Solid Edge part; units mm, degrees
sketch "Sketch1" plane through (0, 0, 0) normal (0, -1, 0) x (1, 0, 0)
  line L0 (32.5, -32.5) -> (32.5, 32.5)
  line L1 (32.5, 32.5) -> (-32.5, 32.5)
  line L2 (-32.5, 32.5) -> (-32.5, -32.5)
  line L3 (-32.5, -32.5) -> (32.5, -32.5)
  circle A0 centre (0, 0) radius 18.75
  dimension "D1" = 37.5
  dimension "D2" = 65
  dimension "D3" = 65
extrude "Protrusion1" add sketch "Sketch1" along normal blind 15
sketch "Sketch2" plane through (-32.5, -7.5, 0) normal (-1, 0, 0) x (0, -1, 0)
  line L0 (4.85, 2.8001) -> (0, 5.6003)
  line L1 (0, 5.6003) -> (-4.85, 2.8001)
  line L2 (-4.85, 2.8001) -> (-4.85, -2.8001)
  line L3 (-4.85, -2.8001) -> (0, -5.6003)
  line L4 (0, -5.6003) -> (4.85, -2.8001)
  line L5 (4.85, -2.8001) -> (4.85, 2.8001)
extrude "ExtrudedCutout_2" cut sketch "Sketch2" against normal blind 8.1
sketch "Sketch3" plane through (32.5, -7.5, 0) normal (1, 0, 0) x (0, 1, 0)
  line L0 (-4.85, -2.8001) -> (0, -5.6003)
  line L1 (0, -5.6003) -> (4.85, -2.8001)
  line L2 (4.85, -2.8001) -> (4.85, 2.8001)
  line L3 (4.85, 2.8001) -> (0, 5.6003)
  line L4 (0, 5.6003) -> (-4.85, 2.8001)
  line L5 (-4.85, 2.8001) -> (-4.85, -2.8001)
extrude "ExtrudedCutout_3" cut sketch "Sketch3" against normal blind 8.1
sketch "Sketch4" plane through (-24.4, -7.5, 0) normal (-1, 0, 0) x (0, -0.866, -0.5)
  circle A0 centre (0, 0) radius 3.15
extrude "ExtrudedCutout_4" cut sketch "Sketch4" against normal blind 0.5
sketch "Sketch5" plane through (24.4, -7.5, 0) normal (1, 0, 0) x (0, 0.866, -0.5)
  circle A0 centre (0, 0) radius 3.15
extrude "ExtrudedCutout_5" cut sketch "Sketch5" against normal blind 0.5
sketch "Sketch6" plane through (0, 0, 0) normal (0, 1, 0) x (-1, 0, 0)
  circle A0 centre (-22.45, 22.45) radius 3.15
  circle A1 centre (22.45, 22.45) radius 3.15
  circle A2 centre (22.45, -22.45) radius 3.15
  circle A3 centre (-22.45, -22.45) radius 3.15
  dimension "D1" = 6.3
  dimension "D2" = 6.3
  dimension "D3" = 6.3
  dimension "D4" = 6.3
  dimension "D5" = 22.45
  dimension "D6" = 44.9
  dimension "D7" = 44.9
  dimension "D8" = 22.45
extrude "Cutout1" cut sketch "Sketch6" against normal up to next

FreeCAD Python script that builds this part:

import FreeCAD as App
import Part
import Sketcher
from FreeCAD import Vector
Q = App.Units.Quantity

doc = App.newDocument("Part")
params = doc.addObject("Spreadsheet::Sheet", "Params")
for row, (alias, value) in enumerate([
    ("sketch1_diameter", "37.5 mm"),
    ("sketch1_width", "65 mm"),
    ("pad1_length", "15 mm"),
    ("pocket1_length", "8.1 mm"),
    ("pocket2_length", "8.1 mm"),
    ("sketch4_diameter", "6.3 mm"),
    ("pocket3_length", "0.5 mm"),
    ("sketch5_diameter", "6.3 mm"),
    ("pocket4_length", "0.5 mm"),
    ("sketch6_diameter", "6.3 mm"),
    ("pocket5_length", "15 mm"),
], start=1):
    params.set(f"A{row}", alias)
    params.set(f"B{row}", "=" + value)
    params.setAlias(f"B{row}", alias)

body = doc.addObject("PartDesign::Body", "Body")

sketch1 = body.newObject("Sketcher::SketchObject", "Sketch")
sketch1.AttachmentSupport = (doc.getObject("XZ_Plane"), [""])
sketch1.MapMode = "FlatFace"
sketch1.addGeometry(Part.LineSegment(Vector(-32, -32, 0), Vector(32, -32, 0)), False)
sketch1.addGeometry(Part.LineSegment(Vector(32, -32, 0), Vector(32, 32, 0)), False)
sketch1.addGeometry(Part.LineSegment(Vector(32, 32, 0), Vector(-32, 32, 0)), False)
sketch1.addGeometry(Part.LineSegment(Vector(-32, 32, 0), Vector(-32, -32, 0)), False)
sketch1.addGeometry(Part.Circle(Vector(0, 0, 0), Vector(0, 0, 1), 19), False)
sketch1.addConstraint(Sketcher.Constraint("Coincident", 0, 2, 1, 1))
sketch1.addConstraint(Sketcher.Constraint("Coincident", 1, 2, 2, 1))
sketch1.addConstraint(Sketcher.Constraint("Coincident", 2, 2, 3, 1))
sketch1.addConstraint(Sketcher.Constraint("Coincident", 3, 2, 0, 1))
sketch1.addConstraint(Sketcher.Constraint("Horizontal", 0))
sketch1.addConstraint(Sketcher.Constraint("Vertical", 1))
sketch1.addConstraint(Sketcher.Constraint("Horizontal", 2))
sketch1.addConstraint(Sketcher.Constraint("Vertical", 3))
sketch1.addConstraint(Sketcher.Constraint("Coincident", 4, 3, -1, 1))
sketch1.addConstraint(Sketcher.Constraint("Symmetric", 0, 2, 2, 2, -1, 1))
sketch1.addConstraint(Sketcher.Constraint("Equal", 2, 1))
sketch1.addConstraint(Sketcher.Constraint("Diameter", 4, 37.5))
sketch1.addConstraint(Sketcher.Constraint("DistanceX", 0, 1, 0, 2, 65.0))
sketch1.setExpression("Constraints[11]", "Params.sketch1_diameter")
sketch1.setExpression("Constraints[12]", "Params.sketch1_width")
pad1 = body.newObject("PartDesign::Pad", "Pad")
pad1.Profile = sketch1
pad1.setExpression("Length", "Params.pad1_length")

sketch2 = body.newObject("Sketcher::SketchObject", "Sketch001")
sketch2.AttachmentSupport = (doc.getObject("YZ_Plane"), [""])
sketch2.MapMode = "FlatFace"
sketch2.AttachmentOffset = App.Placement(Vector(0, 0, -32.5), App.Rotation())
sketch2.addGeometry(Part.LineSegment(Vector(-12, -3, 0), Vector(-12, 3, 0)), False)
sketch2.addGeometry(Part.LineSegment(Vector(-12, 3, 0), Vector(-8, 6, 0)), False)
sketch2.addGeometry(Part.LineSegment(Vector(-8, 6, 0), Vector(-3, 3, 0)), False)
sketch2.addGeometry(Part.LineSegment(Vector(-3, 3, 0), Vector(-3, -3, 0)), False)
sketch2.addGeometry(Part.LineSegment(Vector(-3, -3, 0), Vector(-8, -6, 0)), False)
sketch2.addGeometry(Part.LineSegment(Vector(-8, -6, 0), Vector(-12, -3, 0)), False)
sketch2.addConstraint(Sketcher.Constraint("Coincident", 0, 2, 1, 1))
sketch2.addConstraint(Sketcher.Constraint("Coincident", 1, 2, 2, 1))
sketch2.addConstraint(Sketcher.Constraint("Coincident", 2, 2, 3, 1))
sketch2.addConstraint(Sketcher.Constraint("Coincident", 3, 2, 4, 1))
sketch2.addConstraint(Sketcher.Constraint("Coincident", 4, 2, 5, 1))
sketch2.addConstraint(Sketcher.Constraint("Coincident", 5, 2, 0, 1))
sketch2.addConstraint(Sketcher.Constraint("Vertical", 0))
sketch2.addConstraint(Sketcher.Constraint("Vertical", 3))
sketch2.addConstraint(Sketcher.Constraint("Symmetric", 1, 2, 4, 2, -1))
sketch2.addConstraint(Sketcher.Constraint("Parallel", 1, 4))
sketch2.addConstraint(Sketcher.Constraint("Parallel", 2, 5))
sketch2.addConstraint(Sketcher.Constraint("Horizontal", 0, 2, 2, 2))
sketch2.addConstraint(Sketcher.Constraint("Horizontal", 3, 2, 5, 2))
sketch2.addConstraint(Sketcher.Constraint("Angle", 1, Q("30.0005 deg")))
sketch2.addConstraint(Sketcher.Constraint("DistanceY", -1, 1, 0, 2, 2.8))
sketch2.addConstraint(Sketcher.Constraint("DistanceX", 1, 2, -1, 1, 7.5))
sketch2.addConstraint(Sketcher.Constraint("DistanceX", 0, 2, 2, 2, 9.7))
pocket1 = body.newObject("PartDesign::Pocket", "Pocket")
pocket1.Profile = sketch2
pocket1.setExpression("Length", "Params.pocket1_length")
pocket1.Reversed = True

sketch3 = body.newObject("Sketcher::SketchObject", "Sketch002")
sketch3.AttachmentSupport = (doc.getObject("YZ_Plane"), [""])
sketch3.MapMode = "FlatFace"
sketch3.AttachmentOffset = App.Placement(Vector(0, 0, 32.5), App.Rotation())
sketch3.addGeometry(Part.LineSegment(Vector(-12, 3, 0), Vector(-12, -3, 0)), False)
sketch3.addGeometry(Part.LineSegment(Vector(-12, -3, 0), Vector(-8, -6, 0)), False)
sketch3.addGeometry(Part.LineSegment(Vector(-8, -6, 0), Vector(-3, -3, 0)), False)
sketch3.addGeometry(Part.LineSegment(Vector(-3, -3, 0), Vector(-3, 3, 0)), False)
sketch3.addGeometry(Part.LineSegment(Vector(-3, 3, 0), Vector(-8, 6, 0)), False)
sketch3.addGeometry(Part.LineSegment(Vector(-8, 6, 0), Vector(-12, 3, 0)), False)
sketch3.addConstraint(Sketcher.Constraint("Coincident", 0, 2, 1, 1))
sketch3.addConstraint(Sketcher.Constraint("Coincident", 1, 2, 2, 1))
sketch3.addConstraint(Sketcher.Constraint("Coincident", 2, 2, 3, 1))
sketch3.addConstraint(Sketcher.Constraint("Coincident", 3, 2, 4, 1))
sketch3.addConstraint(Sketcher.Constraint("Coincident", 4, 2, 5, 1))
sketch3.addConstraint(Sketcher.Constraint("Coincident", 5, 2, 0, 1))
sketch3.addConstraint(Sketcher.Constraint("Vertical", 0))
sketch3.addConstraint(Sketcher.Constraint("Vertical", 3))
sketch3.addConstraint(Sketcher.Constraint("Symmetric", 1, 2, 4, 2, -1))
sketch3.addConstraint(Sketcher.Constraint("Parallel", 1, 4))
sketch3.addConstraint(Sketcher.Constraint("Parallel", 2, 5))
sketch3.addConstraint(Sketcher.Constraint("Horizontal", 0, 2, 2, 2))
sketch3.addConstraint(Sketcher.Constraint("Horizontal", 3, 2, 5, 2))
sketch3.addConstraint(Sketcher.Constraint("Angle", 1, Q("-30.0005 deg")))
sketch3.addConstraint(Sketcher.Constraint("DistanceY", 0, 2, -1, 1, 2.8))
sketch3.addConstraint(Sketcher.Constraint("DistanceX", 1, 2, -1, 1, 7.5))
sketch3.addConstraint(Sketcher.Constraint("DistanceX", 0, 2, 2, 2, 9.7))
pocket2 = body.newObject("PartDesign::Pocket", "Pocket001")
pocket2.Profile = sketch3
pocket2.setExpression("Length", "Params.pocket2_length")

sketch4 = body.newObject("Sketcher::SketchObject", "Sketch003")
sketch4.AttachmentSupport = (doc.getObject("YZ_Plane"), [""])
sketch4.MapMode = "FlatFace"
sketch4.AttachmentOffset = App.Placement(Vector(0, 0, -24.4), App.Rotation())
sketch4.addGeometry(Part.Circle(Vector(-7.5, 0, 0), Vector(0, 0, 1), 3.1), False)
sketch4.addConstraint(Sketcher.Constraint("PointOnObject", 0, 3, -1))
sketch4.addConstraint(Sketcher.Constraint("Diameter", 0, 6.3))
sketch4.addConstraint(Sketcher.Constraint("DistanceX", 0, 3, -1, 1, 7.5))
sketch4.setExpression("Constraints[1]", "Params.sketch4_diameter")
pocket3 = body.newObject("PartDesign::Pocket", "Pocket002")
pocket3.Profile = sketch4
pocket3.setExpression("Length", "Params.pocket3_length")
pocket3.Reversed = True

sketch5 = body.newObject("Sketcher::SketchObject", "Sketch004")
sketch5.AttachmentSupport = (doc.getObject("YZ_Plane"), [""])
sketch5.MapMode = "FlatFace"
sketch5.AttachmentOffset = App.Placement(Vector(0, 0, 24.4), App.Rotation())
sketch5.addGeometry(Part.Circle(Vector(-7.5, 0, 0), Vector(0, 0, 1), 3.1), False)
sketch5.addConstraint(Sketcher.Constraint("PointOnObject", 0, 3, -1))
sketch5.addConstraint(Sketcher.Constraint("Diameter", 0, 6.3))
sketch5.addConstraint(Sketcher.Constraint("DistanceX", 0, 3, -1, 1, 7.5))
sketch5.setExpression("Constraints[1]", "Params.sketch5_diameter")
pocket4 = body.newObject("PartDesign::Pocket", "Pocket003")
pocket4.Profile = sketch5
pocket4.setExpression("Length", "Params.pocket4_length")

sketch6 = body.newObject("Sketcher::SketchObject", "Sketch005")
sketch6.AttachmentSupport = (doc.getObject("XZ_Plane"), [""])
sketch6.MapMode = "FlatFace"
sketch6.addGeometry(Part.Circle(Vector(22.4, 22.4, 0), Vector(0, 0, 1), 3.1), False)
sketch6.addGeometry(Part.Circle(Vector(-22.4, 22.4, 0), Vector(0, 0, 1), 3.1), False)
sketch6.addGeometry(Part.Circle(Vector(-22.4, -22.4, 0), Vector(0, 0, 1), 3.1), False)
sketch6.addGeometry(Part.Circle(Vector(22.4, -22.4, 0), Vector(0, 0, 1), 3.1), False)
sketch6.addConstraint(Sketcher.Constraint("Equal", 0, 1))
sketch6.addConstraint(Sketcher.Constraint("Equal", 1, 2))
sketch6.addConstraint(Sketcher.Constraint("Equal", 2, 3))
sketch6.addConstraint(Sketcher.Constraint("Symmetric", 0, 3, 2, 3, -1, 1))
sketch6.addConstraint(Sketcher.Constraint("Symmetric", 1, 3, 3, 3, -1, 1))
sketch6.addConstraint(Sketcher.Constraint("Symmetric", 0, 3, 1, 3, -2))
sketch6.addConstraint(Sketcher.Constraint("Diameter", 0, 6.3))
sketch6.addConstraint(Sketcher.Constraint("DistanceX", 1, 3, 0, 3, 44.9))
sketch6.addConstraint(Sketcher.Constraint("DistanceY", 2, 3, 1, 3, 44.9))
sketch6.setExpression("Constraints[6]", "Params.sketch6_diameter")
pocket5 = body.newObject("PartDesign::Pocket", "Pocket004")
pocket5.Profile = sketch6
pocket5.setExpression("Length", "Params.pocket5_length")
pocket5.Reversed = True

doc.recompute()
